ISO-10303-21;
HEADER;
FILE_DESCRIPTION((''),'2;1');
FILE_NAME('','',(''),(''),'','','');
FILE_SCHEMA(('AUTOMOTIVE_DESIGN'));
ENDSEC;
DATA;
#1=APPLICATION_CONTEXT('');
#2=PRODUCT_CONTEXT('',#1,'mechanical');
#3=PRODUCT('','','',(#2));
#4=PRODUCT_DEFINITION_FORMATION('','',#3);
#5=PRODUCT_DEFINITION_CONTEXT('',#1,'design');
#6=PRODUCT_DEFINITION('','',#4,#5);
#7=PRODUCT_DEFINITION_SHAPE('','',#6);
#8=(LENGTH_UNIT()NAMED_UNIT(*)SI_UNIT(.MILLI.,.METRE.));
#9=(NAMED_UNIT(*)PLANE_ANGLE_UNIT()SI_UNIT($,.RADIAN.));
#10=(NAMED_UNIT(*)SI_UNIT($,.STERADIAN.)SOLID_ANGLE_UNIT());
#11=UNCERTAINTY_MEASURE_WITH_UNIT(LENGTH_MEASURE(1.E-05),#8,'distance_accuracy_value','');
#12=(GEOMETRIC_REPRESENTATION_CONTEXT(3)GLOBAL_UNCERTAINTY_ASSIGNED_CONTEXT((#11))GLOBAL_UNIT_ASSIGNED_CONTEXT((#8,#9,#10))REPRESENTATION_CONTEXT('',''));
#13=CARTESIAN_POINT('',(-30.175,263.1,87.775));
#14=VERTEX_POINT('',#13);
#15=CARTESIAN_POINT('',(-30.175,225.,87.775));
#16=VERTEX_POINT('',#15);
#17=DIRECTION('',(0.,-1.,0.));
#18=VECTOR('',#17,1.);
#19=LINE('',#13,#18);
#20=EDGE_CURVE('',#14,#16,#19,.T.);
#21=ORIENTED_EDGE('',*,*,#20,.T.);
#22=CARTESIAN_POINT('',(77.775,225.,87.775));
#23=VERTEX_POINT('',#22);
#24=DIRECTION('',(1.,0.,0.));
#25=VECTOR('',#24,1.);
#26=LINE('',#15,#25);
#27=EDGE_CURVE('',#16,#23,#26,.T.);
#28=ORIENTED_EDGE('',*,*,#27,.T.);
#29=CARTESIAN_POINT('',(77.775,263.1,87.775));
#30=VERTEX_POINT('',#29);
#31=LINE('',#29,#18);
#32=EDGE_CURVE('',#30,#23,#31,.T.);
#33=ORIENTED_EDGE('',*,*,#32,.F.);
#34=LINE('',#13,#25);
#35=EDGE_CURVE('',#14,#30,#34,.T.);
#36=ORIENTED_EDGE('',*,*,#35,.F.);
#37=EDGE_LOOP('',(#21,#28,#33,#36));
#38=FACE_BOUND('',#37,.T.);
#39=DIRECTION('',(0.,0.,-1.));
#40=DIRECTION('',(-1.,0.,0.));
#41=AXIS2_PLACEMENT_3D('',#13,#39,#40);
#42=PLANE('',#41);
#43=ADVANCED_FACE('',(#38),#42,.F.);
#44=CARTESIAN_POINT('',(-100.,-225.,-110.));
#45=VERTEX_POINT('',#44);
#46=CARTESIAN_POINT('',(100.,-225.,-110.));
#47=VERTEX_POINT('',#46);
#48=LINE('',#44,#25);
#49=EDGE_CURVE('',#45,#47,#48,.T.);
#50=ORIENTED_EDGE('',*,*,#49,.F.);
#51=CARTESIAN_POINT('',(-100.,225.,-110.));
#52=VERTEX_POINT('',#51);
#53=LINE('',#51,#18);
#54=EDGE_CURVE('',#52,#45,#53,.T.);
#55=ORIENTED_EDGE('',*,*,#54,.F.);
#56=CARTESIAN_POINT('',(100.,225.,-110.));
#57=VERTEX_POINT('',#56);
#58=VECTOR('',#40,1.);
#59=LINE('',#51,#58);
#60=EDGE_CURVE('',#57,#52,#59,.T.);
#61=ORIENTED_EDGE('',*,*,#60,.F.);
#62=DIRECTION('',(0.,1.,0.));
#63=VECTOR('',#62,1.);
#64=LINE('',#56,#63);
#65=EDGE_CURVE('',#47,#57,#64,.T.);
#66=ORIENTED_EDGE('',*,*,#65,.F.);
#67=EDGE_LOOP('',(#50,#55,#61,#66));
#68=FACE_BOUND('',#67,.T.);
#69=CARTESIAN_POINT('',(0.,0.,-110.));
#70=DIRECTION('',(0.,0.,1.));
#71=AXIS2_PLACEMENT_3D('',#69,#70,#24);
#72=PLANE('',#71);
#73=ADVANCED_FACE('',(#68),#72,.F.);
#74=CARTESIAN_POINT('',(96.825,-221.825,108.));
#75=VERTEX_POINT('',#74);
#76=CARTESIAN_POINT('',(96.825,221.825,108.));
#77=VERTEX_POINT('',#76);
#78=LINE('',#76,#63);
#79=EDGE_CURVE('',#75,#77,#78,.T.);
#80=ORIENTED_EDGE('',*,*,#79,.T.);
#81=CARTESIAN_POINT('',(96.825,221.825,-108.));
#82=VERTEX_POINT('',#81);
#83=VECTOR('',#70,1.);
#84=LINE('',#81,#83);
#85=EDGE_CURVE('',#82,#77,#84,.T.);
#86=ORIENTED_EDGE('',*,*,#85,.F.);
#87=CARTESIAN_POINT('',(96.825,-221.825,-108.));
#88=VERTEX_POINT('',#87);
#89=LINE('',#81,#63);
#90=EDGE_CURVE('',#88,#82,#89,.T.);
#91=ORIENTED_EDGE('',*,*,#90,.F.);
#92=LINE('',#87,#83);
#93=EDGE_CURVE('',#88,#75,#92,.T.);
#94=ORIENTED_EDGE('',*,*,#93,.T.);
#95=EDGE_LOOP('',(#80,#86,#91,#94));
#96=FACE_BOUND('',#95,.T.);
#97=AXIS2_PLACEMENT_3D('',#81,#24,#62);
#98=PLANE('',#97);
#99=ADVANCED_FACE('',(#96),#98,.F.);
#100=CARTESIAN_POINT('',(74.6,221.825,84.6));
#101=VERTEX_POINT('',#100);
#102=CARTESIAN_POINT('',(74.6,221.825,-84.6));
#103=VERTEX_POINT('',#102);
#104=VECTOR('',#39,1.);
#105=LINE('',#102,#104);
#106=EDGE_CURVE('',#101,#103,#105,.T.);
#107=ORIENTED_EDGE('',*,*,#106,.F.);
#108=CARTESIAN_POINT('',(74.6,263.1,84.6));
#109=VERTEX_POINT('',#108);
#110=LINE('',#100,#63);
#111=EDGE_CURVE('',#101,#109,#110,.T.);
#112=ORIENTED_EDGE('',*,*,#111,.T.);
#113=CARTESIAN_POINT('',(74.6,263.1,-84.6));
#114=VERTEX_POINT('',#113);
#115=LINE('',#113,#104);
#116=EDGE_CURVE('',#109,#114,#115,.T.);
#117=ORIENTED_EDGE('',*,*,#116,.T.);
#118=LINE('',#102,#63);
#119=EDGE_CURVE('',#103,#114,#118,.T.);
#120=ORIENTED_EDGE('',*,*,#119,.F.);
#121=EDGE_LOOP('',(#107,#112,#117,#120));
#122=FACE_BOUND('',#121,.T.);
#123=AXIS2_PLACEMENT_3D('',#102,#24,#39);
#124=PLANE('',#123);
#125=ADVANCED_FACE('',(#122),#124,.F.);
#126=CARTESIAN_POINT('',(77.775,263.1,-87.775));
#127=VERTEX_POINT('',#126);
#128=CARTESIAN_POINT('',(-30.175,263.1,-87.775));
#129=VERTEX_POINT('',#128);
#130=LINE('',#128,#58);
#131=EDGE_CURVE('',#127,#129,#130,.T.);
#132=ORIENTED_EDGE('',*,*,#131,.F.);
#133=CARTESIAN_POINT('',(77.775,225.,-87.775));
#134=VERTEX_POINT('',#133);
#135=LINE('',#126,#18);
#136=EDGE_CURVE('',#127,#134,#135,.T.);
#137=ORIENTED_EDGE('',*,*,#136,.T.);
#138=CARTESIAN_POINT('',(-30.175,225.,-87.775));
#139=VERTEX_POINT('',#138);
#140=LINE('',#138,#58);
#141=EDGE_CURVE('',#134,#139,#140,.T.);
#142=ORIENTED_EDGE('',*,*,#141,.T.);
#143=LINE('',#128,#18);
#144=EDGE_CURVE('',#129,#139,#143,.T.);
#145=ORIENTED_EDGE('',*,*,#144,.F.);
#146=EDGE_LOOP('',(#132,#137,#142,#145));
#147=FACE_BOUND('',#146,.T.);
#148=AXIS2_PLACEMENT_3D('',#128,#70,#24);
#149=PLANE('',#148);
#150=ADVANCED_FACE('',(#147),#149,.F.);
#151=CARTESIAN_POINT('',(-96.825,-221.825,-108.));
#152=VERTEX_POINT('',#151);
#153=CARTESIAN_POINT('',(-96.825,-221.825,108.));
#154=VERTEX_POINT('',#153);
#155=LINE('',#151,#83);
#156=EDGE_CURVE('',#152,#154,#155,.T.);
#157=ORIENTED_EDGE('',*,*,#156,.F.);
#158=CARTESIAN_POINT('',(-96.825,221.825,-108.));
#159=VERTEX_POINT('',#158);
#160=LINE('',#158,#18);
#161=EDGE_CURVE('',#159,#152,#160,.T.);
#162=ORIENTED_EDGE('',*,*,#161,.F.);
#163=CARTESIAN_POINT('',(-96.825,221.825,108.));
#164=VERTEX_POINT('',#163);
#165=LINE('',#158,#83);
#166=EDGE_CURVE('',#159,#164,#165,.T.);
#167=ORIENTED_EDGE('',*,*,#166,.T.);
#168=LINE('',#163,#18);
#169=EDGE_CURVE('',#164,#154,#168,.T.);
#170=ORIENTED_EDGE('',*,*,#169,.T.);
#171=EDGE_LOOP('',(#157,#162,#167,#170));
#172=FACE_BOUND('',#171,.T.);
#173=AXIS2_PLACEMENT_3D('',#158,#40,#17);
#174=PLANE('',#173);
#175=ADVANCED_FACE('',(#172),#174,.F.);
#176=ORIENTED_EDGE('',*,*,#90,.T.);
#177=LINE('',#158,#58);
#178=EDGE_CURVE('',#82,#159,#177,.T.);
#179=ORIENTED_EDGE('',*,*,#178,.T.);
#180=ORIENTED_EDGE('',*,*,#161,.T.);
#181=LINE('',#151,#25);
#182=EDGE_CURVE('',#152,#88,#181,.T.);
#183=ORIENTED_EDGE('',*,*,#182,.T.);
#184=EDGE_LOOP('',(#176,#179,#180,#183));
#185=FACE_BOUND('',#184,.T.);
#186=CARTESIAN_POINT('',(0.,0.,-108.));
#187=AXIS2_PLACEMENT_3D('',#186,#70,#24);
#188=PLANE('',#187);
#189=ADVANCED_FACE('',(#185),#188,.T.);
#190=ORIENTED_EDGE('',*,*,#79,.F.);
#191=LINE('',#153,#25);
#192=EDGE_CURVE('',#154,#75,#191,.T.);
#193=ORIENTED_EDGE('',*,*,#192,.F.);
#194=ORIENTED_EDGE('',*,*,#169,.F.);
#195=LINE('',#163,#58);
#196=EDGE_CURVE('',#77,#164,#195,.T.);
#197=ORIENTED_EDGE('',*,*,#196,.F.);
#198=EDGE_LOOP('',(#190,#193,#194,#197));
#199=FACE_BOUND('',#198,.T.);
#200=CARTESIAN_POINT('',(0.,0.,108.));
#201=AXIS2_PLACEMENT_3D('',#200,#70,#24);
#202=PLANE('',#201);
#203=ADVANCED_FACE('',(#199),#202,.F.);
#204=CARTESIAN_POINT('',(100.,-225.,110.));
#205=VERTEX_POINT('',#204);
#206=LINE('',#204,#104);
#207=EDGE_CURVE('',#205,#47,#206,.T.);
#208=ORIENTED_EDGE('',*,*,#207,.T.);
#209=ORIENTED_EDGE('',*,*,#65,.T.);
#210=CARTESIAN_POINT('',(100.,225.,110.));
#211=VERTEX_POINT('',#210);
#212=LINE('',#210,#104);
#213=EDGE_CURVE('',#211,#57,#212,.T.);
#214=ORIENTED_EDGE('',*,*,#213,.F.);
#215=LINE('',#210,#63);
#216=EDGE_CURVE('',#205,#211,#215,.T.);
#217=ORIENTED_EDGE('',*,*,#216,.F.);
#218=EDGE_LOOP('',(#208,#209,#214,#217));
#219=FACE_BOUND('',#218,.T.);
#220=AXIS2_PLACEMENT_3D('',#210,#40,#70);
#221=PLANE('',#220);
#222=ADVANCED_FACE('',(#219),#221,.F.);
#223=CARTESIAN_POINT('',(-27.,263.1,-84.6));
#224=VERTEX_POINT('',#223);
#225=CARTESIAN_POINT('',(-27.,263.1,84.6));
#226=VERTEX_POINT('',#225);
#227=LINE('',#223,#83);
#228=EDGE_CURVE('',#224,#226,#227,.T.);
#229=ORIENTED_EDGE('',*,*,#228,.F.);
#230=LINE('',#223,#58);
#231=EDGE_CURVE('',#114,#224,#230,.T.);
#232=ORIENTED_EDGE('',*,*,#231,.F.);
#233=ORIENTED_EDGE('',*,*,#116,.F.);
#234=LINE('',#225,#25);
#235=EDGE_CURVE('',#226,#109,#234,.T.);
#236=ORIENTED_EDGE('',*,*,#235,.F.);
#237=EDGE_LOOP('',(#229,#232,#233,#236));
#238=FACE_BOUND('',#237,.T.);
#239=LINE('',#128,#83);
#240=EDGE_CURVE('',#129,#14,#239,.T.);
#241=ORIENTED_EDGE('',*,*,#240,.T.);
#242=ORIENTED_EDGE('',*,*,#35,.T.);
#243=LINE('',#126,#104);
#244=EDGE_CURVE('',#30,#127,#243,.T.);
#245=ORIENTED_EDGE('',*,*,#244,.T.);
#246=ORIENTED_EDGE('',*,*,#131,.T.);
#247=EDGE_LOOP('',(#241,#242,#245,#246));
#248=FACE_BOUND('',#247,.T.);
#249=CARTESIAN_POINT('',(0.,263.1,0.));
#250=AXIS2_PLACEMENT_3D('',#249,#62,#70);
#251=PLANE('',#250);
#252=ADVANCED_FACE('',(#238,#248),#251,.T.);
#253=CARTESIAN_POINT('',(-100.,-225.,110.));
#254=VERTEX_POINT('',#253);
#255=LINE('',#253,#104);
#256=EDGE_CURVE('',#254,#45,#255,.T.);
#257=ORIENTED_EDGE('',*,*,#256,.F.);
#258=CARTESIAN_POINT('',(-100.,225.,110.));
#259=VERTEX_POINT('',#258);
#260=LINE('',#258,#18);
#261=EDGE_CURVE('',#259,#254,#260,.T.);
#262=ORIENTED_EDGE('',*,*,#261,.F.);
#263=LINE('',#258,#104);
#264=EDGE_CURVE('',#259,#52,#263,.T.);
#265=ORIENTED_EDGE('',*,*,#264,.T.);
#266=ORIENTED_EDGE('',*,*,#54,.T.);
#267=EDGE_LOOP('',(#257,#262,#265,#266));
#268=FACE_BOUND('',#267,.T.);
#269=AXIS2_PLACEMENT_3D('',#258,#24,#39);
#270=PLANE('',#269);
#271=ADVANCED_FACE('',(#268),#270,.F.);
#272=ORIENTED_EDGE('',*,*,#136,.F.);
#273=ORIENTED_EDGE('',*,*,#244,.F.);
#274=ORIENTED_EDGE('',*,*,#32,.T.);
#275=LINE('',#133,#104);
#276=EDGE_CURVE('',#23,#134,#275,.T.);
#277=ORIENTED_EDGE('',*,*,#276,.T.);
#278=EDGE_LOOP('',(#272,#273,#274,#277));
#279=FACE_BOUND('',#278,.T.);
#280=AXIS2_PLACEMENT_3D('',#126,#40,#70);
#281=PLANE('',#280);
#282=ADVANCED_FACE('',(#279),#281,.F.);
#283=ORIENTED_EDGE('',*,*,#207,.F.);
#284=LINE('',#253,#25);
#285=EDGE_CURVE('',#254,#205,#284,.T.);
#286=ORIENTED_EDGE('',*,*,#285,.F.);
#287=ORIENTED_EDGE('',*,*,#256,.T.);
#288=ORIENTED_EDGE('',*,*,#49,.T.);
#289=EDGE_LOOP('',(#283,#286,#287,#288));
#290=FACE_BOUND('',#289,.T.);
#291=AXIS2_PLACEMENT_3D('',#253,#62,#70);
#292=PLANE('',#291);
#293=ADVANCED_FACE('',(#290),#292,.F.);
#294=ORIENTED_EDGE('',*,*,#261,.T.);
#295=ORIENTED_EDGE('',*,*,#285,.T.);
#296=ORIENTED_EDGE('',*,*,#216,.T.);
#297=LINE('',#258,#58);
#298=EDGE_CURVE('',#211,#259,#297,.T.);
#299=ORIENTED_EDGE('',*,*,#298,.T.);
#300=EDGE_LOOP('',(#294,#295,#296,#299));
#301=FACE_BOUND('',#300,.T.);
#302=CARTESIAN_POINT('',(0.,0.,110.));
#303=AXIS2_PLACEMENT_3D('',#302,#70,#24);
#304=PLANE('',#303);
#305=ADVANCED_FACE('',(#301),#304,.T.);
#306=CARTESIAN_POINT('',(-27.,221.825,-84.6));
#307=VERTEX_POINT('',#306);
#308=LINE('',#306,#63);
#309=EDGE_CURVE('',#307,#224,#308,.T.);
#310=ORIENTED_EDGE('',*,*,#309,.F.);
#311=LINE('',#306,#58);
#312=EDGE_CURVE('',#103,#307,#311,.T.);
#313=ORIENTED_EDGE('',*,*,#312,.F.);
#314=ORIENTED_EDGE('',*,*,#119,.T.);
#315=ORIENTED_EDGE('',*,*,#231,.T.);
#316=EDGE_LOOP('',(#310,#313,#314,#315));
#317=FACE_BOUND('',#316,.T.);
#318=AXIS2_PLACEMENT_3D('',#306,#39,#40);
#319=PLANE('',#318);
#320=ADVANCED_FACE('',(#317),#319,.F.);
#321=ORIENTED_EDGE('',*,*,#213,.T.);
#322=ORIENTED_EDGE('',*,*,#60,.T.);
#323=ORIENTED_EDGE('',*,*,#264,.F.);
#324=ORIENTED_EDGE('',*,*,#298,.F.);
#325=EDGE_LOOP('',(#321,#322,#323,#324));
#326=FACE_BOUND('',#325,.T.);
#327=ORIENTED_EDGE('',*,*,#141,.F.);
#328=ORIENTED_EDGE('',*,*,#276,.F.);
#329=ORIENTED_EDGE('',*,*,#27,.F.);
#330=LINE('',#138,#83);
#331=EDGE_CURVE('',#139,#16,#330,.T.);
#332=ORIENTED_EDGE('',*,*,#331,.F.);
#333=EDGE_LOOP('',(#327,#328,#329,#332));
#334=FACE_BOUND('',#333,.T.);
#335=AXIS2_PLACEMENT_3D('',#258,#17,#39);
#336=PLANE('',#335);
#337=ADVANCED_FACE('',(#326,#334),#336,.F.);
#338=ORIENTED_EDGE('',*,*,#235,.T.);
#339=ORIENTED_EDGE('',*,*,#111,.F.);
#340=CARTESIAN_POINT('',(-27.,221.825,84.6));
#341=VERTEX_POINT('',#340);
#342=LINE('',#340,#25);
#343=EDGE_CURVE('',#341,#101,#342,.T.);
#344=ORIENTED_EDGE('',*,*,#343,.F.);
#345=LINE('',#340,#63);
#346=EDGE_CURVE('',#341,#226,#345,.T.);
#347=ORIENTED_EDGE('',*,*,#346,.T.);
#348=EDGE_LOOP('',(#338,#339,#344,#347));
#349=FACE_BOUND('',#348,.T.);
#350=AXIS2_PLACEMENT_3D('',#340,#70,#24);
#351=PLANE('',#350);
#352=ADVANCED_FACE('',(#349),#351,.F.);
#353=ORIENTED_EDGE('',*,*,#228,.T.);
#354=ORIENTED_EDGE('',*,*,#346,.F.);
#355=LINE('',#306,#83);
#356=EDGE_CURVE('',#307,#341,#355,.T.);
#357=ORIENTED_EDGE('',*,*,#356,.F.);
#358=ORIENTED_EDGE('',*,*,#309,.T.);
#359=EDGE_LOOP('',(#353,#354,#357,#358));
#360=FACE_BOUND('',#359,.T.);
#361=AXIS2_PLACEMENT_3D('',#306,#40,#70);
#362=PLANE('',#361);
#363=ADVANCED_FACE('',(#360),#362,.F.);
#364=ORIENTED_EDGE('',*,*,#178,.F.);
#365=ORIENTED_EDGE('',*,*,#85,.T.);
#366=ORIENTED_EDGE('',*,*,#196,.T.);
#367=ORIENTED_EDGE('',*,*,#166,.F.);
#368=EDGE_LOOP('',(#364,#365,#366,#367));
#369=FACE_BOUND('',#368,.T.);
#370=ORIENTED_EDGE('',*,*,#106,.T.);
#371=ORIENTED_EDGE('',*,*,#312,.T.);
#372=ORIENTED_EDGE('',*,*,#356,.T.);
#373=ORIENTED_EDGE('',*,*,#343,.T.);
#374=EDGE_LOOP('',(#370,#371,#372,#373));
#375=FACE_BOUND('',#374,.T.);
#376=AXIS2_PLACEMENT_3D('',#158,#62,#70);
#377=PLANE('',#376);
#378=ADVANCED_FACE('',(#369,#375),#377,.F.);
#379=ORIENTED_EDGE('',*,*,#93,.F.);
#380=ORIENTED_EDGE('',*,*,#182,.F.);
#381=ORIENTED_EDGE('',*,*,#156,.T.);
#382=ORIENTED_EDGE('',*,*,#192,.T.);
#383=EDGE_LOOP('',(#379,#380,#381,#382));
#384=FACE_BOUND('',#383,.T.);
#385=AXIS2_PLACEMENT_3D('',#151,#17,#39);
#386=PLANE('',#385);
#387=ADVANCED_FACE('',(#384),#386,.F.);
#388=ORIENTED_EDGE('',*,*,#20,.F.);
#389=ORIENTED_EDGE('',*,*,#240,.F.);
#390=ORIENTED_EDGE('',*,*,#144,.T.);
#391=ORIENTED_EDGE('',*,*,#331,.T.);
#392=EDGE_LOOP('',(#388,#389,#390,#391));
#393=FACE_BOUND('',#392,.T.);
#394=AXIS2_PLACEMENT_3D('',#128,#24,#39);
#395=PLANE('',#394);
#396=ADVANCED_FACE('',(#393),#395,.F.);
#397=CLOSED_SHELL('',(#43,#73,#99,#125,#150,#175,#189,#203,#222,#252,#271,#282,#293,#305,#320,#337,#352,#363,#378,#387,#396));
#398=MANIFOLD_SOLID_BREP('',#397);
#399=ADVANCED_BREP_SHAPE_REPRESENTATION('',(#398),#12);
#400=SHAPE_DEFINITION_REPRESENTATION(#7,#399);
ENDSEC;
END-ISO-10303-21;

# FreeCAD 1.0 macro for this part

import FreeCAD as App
import Part
import Sketcher

V = App.Vector
Q = App.Units.Quantity

doc = App.newDocument("Part")
params = doc.addObject("Spreadsheet::Sheet", "Params")
for row, (alias, value) in enumerate([
    ("sketch1_width", "200 mm"),
    ("sketch1_height", "450 mm"),
    ("pad1_length", "220 mm"),
    ("sketch2_width", "193.65 mm"),
    ("sketch2_height", "443.65 mm"),
    ("pocket1_length", "216 mm"),
    ("sketch3_width", "107.95 mm"),
    ("sketch3_height", "175.55 mm"),
    ("pad2_length", "38.1 mm"),
    ("sketch4_width", "101.6 mm"),
    ("sketch4_height", "169.2 mm"),
    ("pocket2_length", "41.275 mm"),
], start=1):
    params.set(f"A{row}", alias)
    params.set(f"B{row}", "=" + value)
    params.setAlias(f"B{row}", alias)

body = doc.addObject("PartDesign::Body", "Body")

# Sketch on XY plane
sketch1 = body.newObject("Sketcher::SketchObject", "Sketch")
sketch1.AttachmentSupport = (doc.getObject("XY_Plane"), [""])
sketch1.MapMode = "FlatFace"
sketch1.addGeometry(Part.LineSegment(V(-100, 225, 0), V(-100, -225, 0)), False)
sketch1.addGeometry(Part.LineSegment(V(-100, -225, 0), V(100, -225, 0)), False)
sketch1.addGeometry(Part.LineSegment(V(100, -225, 0), V(100, 225, 0)), False)
sketch1.addGeometry(Part.LineSegment(V(100, 225, 0), V(-100, 225, 0)), False)
sketch1.addConstraint(Sketcher.Constraint("Coincident", 0, 2, 1, 1))
sketch1.addConstraint(Sketcher.Constraint("Coincident", 1, 2, 2, 1))
sketch1.addConstraint(Sketcher.Constraint("Coincident", 2, 2, 3, 1))
sketch1.addConstraint(Sketcher.Constraint("Coincident", 3, 2, 0, 1))
sketch1.addConstraint(Sketcher.Constraint("Vertical", 0))
sketch1.addConstraint(Sketcher.Constraint("Horizontal", 1))
sketch1.addConstraint(Sketcher.Constraint("Vertical", 2))
sketch1.addConstraint(Sketcher.Constraint("Horizontal", 3))
sketch1.addConstraint(Sketcher.Constraint("Symmetric", 0, 2, 2, 2, -1, 1))
sketch1.addConstraint(Sketcher.Constraint("DistanceX", 1, 1, 1, 2, Q("200 mm")))
sketch1.addConstraint(Sketcher.Constraint("DistanceY", 0, 2, 0, 1, Q("450 mm")))
sketch1.setExpression("Constraints[9]", "Params.sketch1_width")
sketch1.setExpression("Constraints[10]", "Params.sketch1_height")
pad1 = body.newObject("PartDesign::Pad", "Pad")
pad1.Profile = sketch1
pad1.setExpression("Length", "Params.pad1_length")
pad1.Midplane = True

# Sketch on XY plane
sketch2 = body.newObject("Sketcher::SketchObject", "Sketch001")
sketch2.AttachmentSupport = (doc.getObject("XY_Plane"), [""])
sketch2.MapMode = "FlatFace"
sketch2.addGeometry(Part.LineSegment(V(-96.825, 221.825, 0), V(-96.825, -221.825, 0)), False)
sketch2.addGeometry(Part.LineSegment(V(-96.825, -221.825, 0), V(96.825, -221.825, 0)), False)
sketch2.addGeometry(Part.LineSegment(V(96.825, -221.825, 0), V(96.825, 221.825, 0)), False)
sketch2.addGeometry(Part.LineSegment(V(96.825, 221.825, 0), V(-96.825, 221.825, 0)), False)
sketch2.addConstraint(Sketcher.Constraint("Coincident", 0, 2, 1, 1))
sketch2.addConstraint(Sketcher.Constraint("Coincident", 1, 2, 2, 1))
sketch2.addConstraint(Sketcher.Constraint("Coincident", 2, 2, 3, 1))
sketch2.addConstraint(Sketcher.Constraint("Coincident", 3, 2, 0, 1))
sketch2.addConstraint(Sketcher.Constraint("Vertical", 0))
sketch2.addConstraint(Sketcher.Constraint("Horizontal", 1))
sketch2.addConstraint(Sketcher.Constraint("Vertical", 2))
sketch2.addConstraint(Sketcher.Constraint("Horizontal", 3))
sketch2.addConstraint(Sketcher.Constraint("Symmetric", 0, 2, 2, 2, -1, 1))
sketch2.addConstraint(Sketcher.Constraint("DistanceX", 1, 1, 1, 2, Q("193.65 mm")))
sketch2.addConstraint(Sketcher.Constraint("DistanceY", 0, 2, 0, 1, Q("443.65 mm")))
sketch2.setExpression("Constraints[9]", "Params.sketch2_width")
sketch2.setExpression("Constraints[10]", "Params.sketch2_height")
pocket1 = body.newObject("PartDesign::Pocket", "Pocket")
pocket1.Profile = sketch2
pocket1.setExpression("Length", "Params.pocket1_length")
pocket1.Midplane = True

# Sketch on XZ plane
sketch3 = body.newObject("Sketcher::SketchObject", "Sketch002")
sketch3.AttachmentSupport = (doc.getObject("XZ_Plane"), [""])
sketch3.MapMode = "FlatFace"
sketch3.AttachmentOffset = App.Placement(V(0, 0, -225), App.Rotation())
sketch3.addGeometry(Part.LineSegment(V(-30.175, -87.775, 0), V(-30.175, 87.775, 0)), False)
sketch3.addGeometry(Part.LineSegment(V(-30.175, 87.775, 0), V(77.775, 87.775, 0)), False)
sketch3.addGeometry(Part.LineSegment(V(77.775, 87.775, 0), V(77.775, -87.775, 0)), False)
sketch3.addGeometry(Part.LineSegment(V(77.775, -87.775, 0), V(-30.175, -87.775, 0)), False)
sketch3.addConstraint(Sketcher.Constraint("Coincident", 0, 2, 1, 1))
sketch3.addConstraint(Sketcher.Constraint("Coincident", 1, 2, 2, 1))
sketch3.addConstraint(Sketcher.Constraint("Coincident", 2, 2, 3, 1))
sketch3.addConstraint(Sketcher.Constraint("Coincident", 3, 2, 0, 1))
sketch3.addConstraint(Sketcher.Constraint("Vertical", 0))
sketch3.addConstraint(Sketcher.Constraint("Horizontal", 1))
sketch3.addConstraint(Sketcher.Constraint("Vertical", 2))
sketch3.addConstraint(Sketcher.Constraint("Horizontal", 3))
sketch3.addConstraint(Sketcher.Constraint("DistanceX", 1, 1, 1, 2, Q("107.95 mm")))
sketch3.addConstraint(Sketcher.Constraint("DistanceY", 0, 1, 0, 2, Q("175.55 mm")))
sketch3.addConstraint(Sketcher.Constraint("DistanceX", 0, 2, -1, 1, Q("30.175 mm")))
sketch3.addConstraint(Sketcher.Constraint("DistanceY", -1, 1, 0, 2, Q("87.775 mm")))
sketch3.setExpression("Constraints[8]", "Params.sketch3_width")
sketch3.setExpression("Constraints[9]", "Params.sketch3_height")
pad2 = body.newObject("PartDesign::Pad", "Pad001")
pad2.Profile = sketch3
pad2.setExpression("Length", "Params.pad2_length")
pad2.Reversed = True

# Sketch on XZ plane
sketch4 = body.newObject("Sketcher::SketchObject", "Sketch003")
sketch4.AttachmentSupport = (doc.getObject("XZ_Plane"), [""])
sketch4.MapMode = "FlatFace"
sketch4.AttachmentOffset = App.Placement(V(0, 0, -263.1), App.Rotation())
sketch4.addGeometry(Part.LineSegment(V(-27, -84.6, 0), V(-27, 84.6, 0)), False)
sketch4.addGeometry(Part.LineSegment(V(-27, 84.6, 0), V(74.6, 84.6, 0)), False)
sketch4.addGeometry(Part.LineSegment(V(74.6, 84.6, 0), V(74.6, -84.6, 0)), False)
sketch4.addGeometry(Part.LineSegment(V(74.6, -84.6, 0), V(-27, -84.6, 0)), False)
sketch4.addConstraint(Sketcher.Constraint("Coincident", 0, 2, 1, 1))
sketch4.addConstraint(Sketcher.Constraint("Coincident", 1, 2, 2, 1))
sketch4.addConstraint(Sketcher.Constraint("Coincident", 2, 2, 3, 1))
sketch4.addConstraint(Sketcher.Constraint("Coincident", 3, 2, 0, 1))
sketch4.addConstraint(Sketcher.Constraint("Vertical", 0))
sketch4.addConstraint(Sketcher.Constraint("Horizontal", 1))
sketch4.addConstraint(Sketcher.Constraint("Vertical", 2))
sketch4.addConstraint(Sketcher.Constraint("Horizontal", 3))
sketch4.addConstraint(Sketcher.Constraint("DistanceX", 1, 1, 1, 2, Q("101.6 mm")))
sketch4.addConstraint(Sketcher.Constraint("DistanceY", 0, 1, 0, 2, Q("169.2 mm")))
sketch4.addConstraint(Sketcher.Constraint("DistanceX", 0, 2, -1, 1, Q("27 mm")))
sketch4.addConstraint(Sketcher.Constraint("DistanceY", -1, 1, 0, 2, Q("84.6 mm")))
sketch4.setExpression("Constraints[8]", "Params.sketch4_width")
sketch4.setExpression("Constraints[9]", "Params.sketch4_height")
pocket2 = body.newObject("PartDesign::Pocket", "Pocket001")
pocket2.Profile = sketch4
pocket2.setExpression("Length", "Params.pocket2_length")
pocket2.Reversed = True

doc.recompute()
